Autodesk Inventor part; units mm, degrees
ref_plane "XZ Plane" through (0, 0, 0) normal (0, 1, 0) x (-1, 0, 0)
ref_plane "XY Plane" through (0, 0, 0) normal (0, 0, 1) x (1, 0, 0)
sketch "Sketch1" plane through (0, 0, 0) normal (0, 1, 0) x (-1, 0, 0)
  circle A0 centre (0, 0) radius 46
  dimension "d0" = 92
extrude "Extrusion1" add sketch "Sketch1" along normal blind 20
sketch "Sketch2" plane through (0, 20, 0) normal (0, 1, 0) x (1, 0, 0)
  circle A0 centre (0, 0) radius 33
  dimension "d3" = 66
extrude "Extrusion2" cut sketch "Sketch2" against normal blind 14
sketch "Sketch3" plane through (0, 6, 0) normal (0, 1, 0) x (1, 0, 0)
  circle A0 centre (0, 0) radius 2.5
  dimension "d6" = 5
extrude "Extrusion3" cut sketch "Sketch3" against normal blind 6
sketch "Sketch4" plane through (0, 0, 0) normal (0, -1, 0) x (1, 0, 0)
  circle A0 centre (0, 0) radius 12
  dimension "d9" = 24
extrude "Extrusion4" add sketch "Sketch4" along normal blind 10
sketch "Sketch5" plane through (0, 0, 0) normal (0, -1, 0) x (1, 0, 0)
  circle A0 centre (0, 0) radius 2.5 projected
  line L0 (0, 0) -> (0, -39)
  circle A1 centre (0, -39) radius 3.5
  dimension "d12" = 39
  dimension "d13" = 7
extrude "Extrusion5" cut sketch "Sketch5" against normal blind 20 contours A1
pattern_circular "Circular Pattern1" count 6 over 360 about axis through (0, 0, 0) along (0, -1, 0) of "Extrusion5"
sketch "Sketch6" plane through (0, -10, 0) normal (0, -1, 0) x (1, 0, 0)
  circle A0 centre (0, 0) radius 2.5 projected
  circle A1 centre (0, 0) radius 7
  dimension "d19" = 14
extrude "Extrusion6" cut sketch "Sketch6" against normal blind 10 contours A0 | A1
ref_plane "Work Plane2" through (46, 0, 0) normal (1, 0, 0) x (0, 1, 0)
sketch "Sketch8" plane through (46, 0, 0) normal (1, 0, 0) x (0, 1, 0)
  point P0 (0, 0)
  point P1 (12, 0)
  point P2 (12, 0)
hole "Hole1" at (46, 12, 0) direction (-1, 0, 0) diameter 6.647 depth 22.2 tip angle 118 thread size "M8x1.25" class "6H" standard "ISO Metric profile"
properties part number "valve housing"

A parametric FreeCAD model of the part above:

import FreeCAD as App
import Part
import Sketcher

V = App.Vector
Q = App.Units.Quantity

doc = App.newDocument("Part")
body = doc.addObject("PartDesign::Body", "Body")

sketch1 = body.newObject("Sketcher::SketchObject", "Sketch")
sketch1.AttachmentSupport = (doc.getObject("XZ_Plane"), [""])
sketch1.MapMode = "FlatFace"
sketch1.addGeometry(Part.Circle(V(0, 0, 0), V(0, 0, 1), 46), False)
sketch1.addConstraint([
    Sketcher.Constraint("Coincident", 0, 3, -1, 1),
    Sketcher.Constraint("Diameter", 0, Q("92 mm")),
])
pad1 = body.newObject("PartDesign::Pad", "Pad")
pad1.Profile = sketch1
pad1.Length = 20
pad1.Reversed = True

sketch2 = body.newObject("Sketcher::SketchObject", "Sketch001")
sketch2.AttachmentSupport = (doc.getObject("XZ_Plane"), [""])
sketch2.MapMode = "FlatFace"
sketch2.AttachmentOffset = App.Placement(V(0, 0, -20), App.Rotation())
sketch2.addGeometry(Part.Circle(V(0, 0, 0), V(0, 0, 1), 33), False)
sketch2.addConstraint([
    Sketcher.Constraint("Coincident", 0, 3, -1, 1),
    Sketcher.Constraint("Diameter", 0, Q("66 mm")),
])
pocket1 = body.newObject("PartDesign::Pocket", "Pocket")
pocket1.Profile = sketch2
pocket1.Length = 14
pocket1.Reversed = True

sketch3 = body.newObject("Sketcher::SketchObject", "Sketch002")
sketch3.AttachmentSupport = (doc.getObject("XZ_Plane"), [""])
sketch3.MapMode = "FlatFace"
sketch3.AttachmentOffset = App.Placement(V(0, 0, -6), App.Rotation())
sketch3.addGeometry(Part.Circle(V(0, 0, 0), V(0, 0, 1), 2.5), False)
sketch3.addConstraint([
    Sketcher.Constraint("Coincident", 0, 3, -1, 1),
    Sketcher.Constraint("Diameter", 0, Q("5 mm")),
])
pocket2 = body.newObject("PartDesign::Pocket", "Pocket001")
pocket2.Profile = sketch3
pocket2.Length = 6
pocket2.Reversed = True

sketch4 = body.newObject("Sketcher::SketchObject", "Sketch003")
sketch4.AttachmentSupport = (doc.getObject("XZ_Plane"), [""])
sketch4.MapMode = "FlatFace"
sketch4.addGeometry(Part.Circle(V(0, 0, 0), V(0, 0, 1), 12), False)
sketch4.addConstraint([
    Sketcher.Constraint("Coincident", 0, 3, -1, 1),
    Sketcher.Constraint("Diameter", 0, Q("24 mm")),
])
pad2 = body.newObject("PartDesign::Pad", "Pad001")
pad2.Profile = sketch4
pad2.Length = 10

sketch5 = body.newObject("Sketcher::SketchObject", "Sketch004")
sketch5.AttachmentSupport = (doc.getObject("XZ_Plane"), [""])
sketch5.MapMode = "FlatFace"
sketch5.addGeometry(Part.Circle(V(0, -39, 0), V(0, 0, 1), 3.5), False)
sketch5.addConstraint([
    Sketcher.Constraint("PointOnObject", 0, 3, -2),
    Sketcher.Constraint("Diameter", 0, Q("7 mm")),
    Sketcher.Constraint("DistanceY", 0, 3, -1, 1, Q("39 mm")),
])
pocket3 = body.newObject("PartDesign::Pocket", "Pocket002")
pocket3.Profile = sketch5
pocket3.Length = 20
doc.recompute()

polarpattern = body.newObject("PartDesign::PolarPattern", "PolarPattern")
polarpattern.Originals = [pocket3]
polarpattern.Axis = (doc.getObject("Y_Axis"), [""])
polarpattern.Angle = 360
polarpattern.Occurrences = 6
body.Tip = polarpattern

sketch6 = body.newObject("Sketcher::SketchObject", "Sketch005")
sketch6.AttachmentSupport = (doc.getObject("XZ_Plane"), [""])
sketch6.MapMode = "FlatFace"
sketch6.AttachmentOffset = App.Placement(V(0, 0, 10), App.Rotation())
sketch6.addGeometry(Part.Circle(V(0, 0, 0), V(0, 0, 1), 7), False)
sketch6.addConstraint([
    Sketcher.Constraint("Coincident", 0, 3, -1, 1),
    Sketcher.Constraint("Diameter", 0, Q("14 mm")),
])
pocket4 = body.newObject("PartDesign::Pocket", "Pocket003")
pocket4.Profile = sketch6
pocket4.Length = 10

sketch7 = body.newObject("Sketcher::SketchObject", "Sketch006")
sketch7.AttachmentSupport = (doc.getObject("YZ_Plane"), [""])
sketch7.MapMode = "FlatFace"
sketch7.AttachmentOffset = App.Placement(V(0, 0, 46), App.Rotation())
sketch7.addGeometry(Part.Circle(V(12, 0, 0), V(0, 0, 1), 3.3), False)
sketch7.addConstraint([
    Sketcher.Constraint("PointOnObject", 0, 3, -1),
    Sketcher.Constraint("Diameter", 0, Q("6.647 mm")),
    Sketcher.Constraint("DistanceX", -1, 1, 0, 3, Q("12 mm")),
])
doc.recompute()
hole = body.newObject("PartDesign::Hole", "Hole")
hole.Profile = sketch7
hole.ThreadType = "None"
hole.Diameter = 6.647
hole.DepthType = "Dimension"
hole.Depth = 22.2
hole.DrillPoint = "Angled"
hole.DrillPointAngle = 118

doc.recompute()
